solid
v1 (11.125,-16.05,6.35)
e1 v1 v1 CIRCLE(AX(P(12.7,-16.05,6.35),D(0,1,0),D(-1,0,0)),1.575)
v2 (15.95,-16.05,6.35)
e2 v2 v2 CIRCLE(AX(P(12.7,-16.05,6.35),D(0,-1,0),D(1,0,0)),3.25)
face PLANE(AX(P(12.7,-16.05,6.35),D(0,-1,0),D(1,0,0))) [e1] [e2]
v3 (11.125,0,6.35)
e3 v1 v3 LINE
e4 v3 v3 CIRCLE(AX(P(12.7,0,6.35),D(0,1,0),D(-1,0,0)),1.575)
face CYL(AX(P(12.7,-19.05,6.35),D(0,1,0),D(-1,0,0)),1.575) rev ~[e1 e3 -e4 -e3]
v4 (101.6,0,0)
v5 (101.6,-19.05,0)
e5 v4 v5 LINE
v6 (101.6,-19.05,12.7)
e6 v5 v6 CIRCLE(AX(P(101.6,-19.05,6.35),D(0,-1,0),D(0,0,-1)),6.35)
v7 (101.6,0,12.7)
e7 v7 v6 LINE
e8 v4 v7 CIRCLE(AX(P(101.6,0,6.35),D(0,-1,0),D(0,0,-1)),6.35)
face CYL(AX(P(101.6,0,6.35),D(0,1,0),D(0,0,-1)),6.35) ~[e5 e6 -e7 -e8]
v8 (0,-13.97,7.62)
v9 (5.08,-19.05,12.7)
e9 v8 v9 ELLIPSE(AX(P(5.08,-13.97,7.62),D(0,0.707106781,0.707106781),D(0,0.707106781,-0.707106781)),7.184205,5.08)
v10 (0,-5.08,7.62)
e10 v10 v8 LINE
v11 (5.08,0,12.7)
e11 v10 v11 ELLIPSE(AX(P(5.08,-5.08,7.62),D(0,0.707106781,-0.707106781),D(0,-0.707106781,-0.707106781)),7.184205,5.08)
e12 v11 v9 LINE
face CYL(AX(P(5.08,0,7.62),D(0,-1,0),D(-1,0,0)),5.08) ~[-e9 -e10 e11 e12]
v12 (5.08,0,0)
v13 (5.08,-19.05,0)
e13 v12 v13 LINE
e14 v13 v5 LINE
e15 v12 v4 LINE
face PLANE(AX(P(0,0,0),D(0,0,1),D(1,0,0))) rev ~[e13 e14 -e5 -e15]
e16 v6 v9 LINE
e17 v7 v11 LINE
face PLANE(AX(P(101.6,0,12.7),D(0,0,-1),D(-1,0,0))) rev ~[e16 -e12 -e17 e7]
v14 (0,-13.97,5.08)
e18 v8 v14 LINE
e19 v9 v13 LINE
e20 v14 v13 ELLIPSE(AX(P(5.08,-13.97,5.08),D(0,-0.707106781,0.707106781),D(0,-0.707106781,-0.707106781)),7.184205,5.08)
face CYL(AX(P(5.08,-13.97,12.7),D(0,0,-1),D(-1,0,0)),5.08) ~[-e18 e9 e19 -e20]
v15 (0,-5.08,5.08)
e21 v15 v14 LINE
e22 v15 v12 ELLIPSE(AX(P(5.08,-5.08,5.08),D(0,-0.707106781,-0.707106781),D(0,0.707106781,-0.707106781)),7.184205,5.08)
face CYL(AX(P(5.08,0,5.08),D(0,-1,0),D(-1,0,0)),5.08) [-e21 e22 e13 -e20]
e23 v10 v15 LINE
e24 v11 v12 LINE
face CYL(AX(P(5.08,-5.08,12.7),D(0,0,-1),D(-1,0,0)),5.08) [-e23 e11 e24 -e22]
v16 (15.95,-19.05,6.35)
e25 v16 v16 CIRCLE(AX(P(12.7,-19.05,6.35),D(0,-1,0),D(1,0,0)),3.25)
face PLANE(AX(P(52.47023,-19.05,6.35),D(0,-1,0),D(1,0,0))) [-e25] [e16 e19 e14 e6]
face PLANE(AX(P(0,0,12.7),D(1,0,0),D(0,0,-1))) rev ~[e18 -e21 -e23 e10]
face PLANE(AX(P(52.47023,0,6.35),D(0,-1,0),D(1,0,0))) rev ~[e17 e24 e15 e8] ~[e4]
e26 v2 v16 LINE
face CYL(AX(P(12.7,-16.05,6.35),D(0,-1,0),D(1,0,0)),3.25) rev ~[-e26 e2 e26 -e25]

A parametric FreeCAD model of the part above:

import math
import FreeCAD as App
import Part
import Sketcher

V = App.Vector
Q = App.Units.Quantity


def edges_at(feature, points):
    """Names of the edges that pass closest to the given points."""
    edges = feature.Shape.Edges
    near = lambda p: min(range(len(edges)), key=lambda i: edges[i].distToShape(Part.Vertex(*p))[0])
    return sorted({f"Edge{near(p) + 1}" for p in points})

doc = App.newDocument("Part")
body = doc.addObject("PartDesign::Body", "Body")

sketch1 = body.newObject("Sketcher::SketchObject", "Sketch")
sketch1.AttachmentSupport = (doc.getObject("XZ_Plane"), [""])
sketch1.MapMode = "FlatFace"
sketch1.addGeometry(Part.LineSegment(V(0, 12.7, 0), V(0, 0, 0)), False)
sketch1.addGeometry(Part.LineSegment(V(0, 0, 0), V(101.6, 0, 0)), False)
sketch1.addGeometry(Part.ArcOfCircle(Part.Circle(V(101.6, 6.35, 0), V(0, 0, 1), 6.35), math.radians(-90), math.radians(90)), False)
sketch1.addGeometry(Part.LineSegment(V(101.6, 12.7, 0), V(0, 12.7, 0)), False)
sketch1.addConstraint(Sketcher.Constraint("Coincident", 0, 2, 1, 1))
sketch1.addConstraint(Sketcher.Constraint("Tangent", 1, 2, 2, 1))
sketch1.addConstraint(Sketcher.Constraint("Tangent", 2, 2, 3, 1))
sketch1.addConstraint(Sketcher.Constraint("Coincident", 3, 2, 0, 1))
sketch1.addConstraint(Sketcher.Constraint("Vertical", 0))
sketch1.addConstraint(Sketcher.Constraint("Horizontal", 1))
sketch1.addConstraint(Sketcher.Constraint("Horizontal", 3))
sketch1.addConstraint(Sketcher.Constraint("Coincident", 0, 2, -1, 1))
sketch1.addConstraint(Sketcher.Constraint("DistanceX", 1, 1, 1, 2, Q("4 in")))
sketch1.addConstraint(Sketcher.Constraint("Radius", 2, Q("0.25 in")))
pad1 = body.newObject("PartDesign::Pad", "Pad")
pad1.Profile = sketch1
pad1.Length = Q("0.75 in")
doc.recompute()

fillet = body.newObject("PartDesign::Fillet", "Fillet")
fillet.Base = (pad1, edges_at(pad1, [
    (0, -19.05, 6.35),
    (0, -9.525, 12.7),
    (0, 0, 6.35),
    (0, -9.525, 0),
]))
fillet.Radius = Q("0.2 in")

sketch2 = body.newObject("Sketcher::SketchObject", "Sketch001")
sketch2.AttachmentSupport = (doc.getObject("XZ_Plane"), [""])
sketch2.MapMode = "FlatFace"
sketch2.AttachmentOffset = App.Placement(V(0, 0, 0.75 * 25.4), App.Rotation())
sketch2.addGeometry(Part.Circle(V(12.7, 6.35, 0), V(0, 0, 1), 1.575), False)
sketch2.addConstraint(Sketcher.Constraint("DistanceX", -1, 1, 0, 3, Q("0.5 in")))
sketch2.addConstraint(Sketcher.Constraint("Diameter", 0, 3.15))
sketch2.addConstraint(Sketcher.Constraint("DistanceY", -1, 1, 0, 3, Q("0.25 in")))
doc.recompute()
hole = body.newObject("PartDesign::Hole", "Hole")
hole.Profile = sketch2
hole.ThreadType = "None"
hole.Diameter = 3.15
hole.DepthType = "ThroughAll"
hole.HoleCutType = "Counterbore"
hole.HoleCutDiameter = 6.5
hole.HoleCutDepth = 3

doc.recompute()
